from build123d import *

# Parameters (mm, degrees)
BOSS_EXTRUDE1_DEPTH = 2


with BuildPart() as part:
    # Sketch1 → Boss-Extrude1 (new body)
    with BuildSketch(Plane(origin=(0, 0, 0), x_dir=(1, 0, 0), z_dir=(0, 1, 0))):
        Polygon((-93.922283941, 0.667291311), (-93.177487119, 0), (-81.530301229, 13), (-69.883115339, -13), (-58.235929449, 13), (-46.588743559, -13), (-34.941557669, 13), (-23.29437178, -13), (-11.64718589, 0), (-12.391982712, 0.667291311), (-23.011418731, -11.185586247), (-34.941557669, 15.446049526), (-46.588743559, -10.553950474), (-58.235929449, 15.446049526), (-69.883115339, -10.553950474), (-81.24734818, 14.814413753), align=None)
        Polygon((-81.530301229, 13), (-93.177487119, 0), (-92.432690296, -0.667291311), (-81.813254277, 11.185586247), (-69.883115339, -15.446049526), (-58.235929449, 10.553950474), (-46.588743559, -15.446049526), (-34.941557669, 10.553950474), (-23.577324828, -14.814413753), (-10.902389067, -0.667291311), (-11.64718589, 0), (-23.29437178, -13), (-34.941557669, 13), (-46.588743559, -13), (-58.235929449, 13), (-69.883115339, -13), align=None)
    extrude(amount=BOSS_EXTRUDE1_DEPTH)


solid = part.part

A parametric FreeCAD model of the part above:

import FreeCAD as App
import Part
import Sketcher

V = App.Vector
Q = App.Units.Quantity


def add_polygon(sketch, points):
    """Adds a closed chain of lines whose ends are joined by coincident constraints."""
    first, n = sketch.GeometryCount, len(points)
    for a, b in zip(points, points[1:] + points[:1]):
        sketch.addGeometry(Part.LineSegment(App.Vector(*a, 0), App.Vector(*b, 0)), False)
    for i in range(n):
        sketch.addConstraint(Sketcher.Constraint("Coincident", first + i, 2, first + (i + 1) % n, 1))

doc = App.newDocument("Part")
body = doc.addObject("PartDesign::Body", "Body")

# Sketch on XZ plane
sketch1 = body.newObject("Sketcher::SketchObject", "Sketch")
sketch1.AttachmentSupport = (doc.getObject("XZ_Plane"), [""])
sketch1.MapMode = "FlatFace"
add_polygon(sketch1, [(-93.9, -0.7), (-93.2, 0), (-92.4, 0.7), (-81.8, -11.2), (-69.9, 15.4), (-58.2, -10.6), (-46.6, 15.4), (-34.9, -10.6), (-23.6, 14.8), (-10.9, 0.7), (-11.6, 0), (-12.4, -0.7), (-23, 11.2), (-34.9, -15.4), (-46.6, 10.6), (-58.2, -15.4), (-69.9, 10.6), (-81.2, -14.8)])  # lines 0-17
sketch1.addConstraint(Sketcher.Constraint("PointOnObject", 0, 2, -1))
sketch1.addConstraint(Sketcher.Constraint("PointOnObject", 9, 2, -1))
sketch1.addConstraint(Sketcher.Constraint("Parallel", 0, 1))
sketch1.addConstraint(Sketcher.Constraint("Perpendicular", 1, 2))
sketch1.addConstraint(Sketcher.Constraint("Parallel", 3, 5))
sketch1.addConstraint(Sketcher.Constraint("Parallel", 4, 6))
sketch1.addConstraint(Sketcher.Constraint("Parallel", 5, 7))
sketch1.addConstraint(Sketcher.Constraint("Parallel", 2, 8))
sketch1.addConstraint(Sketcher.Constraint("Perpendicular", 8, 9))
sketch1.addConstraint(Sketcher.Constraint("Parallel", 9, 10))
sketch1.addConstraint(Sketcher.Constraint("Perpendicular", 10, 11))
sketch1.addConstraint(Sketcher.Constraint("Parallel", 7, 12))
sketch1.addConstraint(Sketcher.Constraint("Parallel", 6, 13))
sketch1.addConstraint(Sketcher.Constraint("Parallel", 12, 14))
sketch1.addConstraint(Sketcher.Constraint("Parallel", 13, 15))
sketch1.addConstraint(Sketcher.Constraint("Parallel", 14, 16))
sketch1.addConstraint(Sketcher.Constraint("Parallel", 11, 17))
sketch1.addConstraint(Sketcher.Constraint("Horizontal", 3, 2, 5, 2))
sketch1.addConstraint(Sketcher.Constraint("Horizontal", 4, 2, 6, 2))
sketch1.addConstraint(Sketcher.Constraint("Horizontal", 1, 2, 8, 2))
sketch1.addConstraint(Sketcher.Constraint("Horizontal", 12, 2, 14, 2))
sketch1.addConstraint(Sketcher.Constraint("Horizontal", 13, 2, 15, 2))
sketch1.addConstraint(Sketcher.Constraint("Horizontal", 10, 2, 17, 2))
sketch1.addConstraint(Sketcher.Constraint("Vertical", 6, 2, 12, 2))
sketch1.addConstraint(Sketcher.Constraint("Vertical", 5, 2, 13, 2))
sketch1.addConstraint(Sketcher.Constraint("Equal", 0, 1))
sketch1.addConstraint(Sketcher.Constraint("Equal", 4, 5))
sketch1.addConstraint(Sketcher.Constraint("Equal", 2, 11))
sketch1.addConstraint(Sketcher.Constraint("Equal", 3, 12))
sketch1.addConstraint(Sketcher.Constraint("Distance", 0, Q("1 mm")))
sketch1.addConstraint(Sketcher.Constraint("DistanceY", 4, 2, 3, 2, Q("26 mm")))
sketch1.addConstraint(Sketcher.Constraint("DistanceY", 2, 2, 7, 2, Q("26 mm")))
sketch1.addConstraint(Sketcher.Constraint("DistanceY", 12, 2, 6, 2, Q("4.892099 mm")))
sketch1.addConstraint(Sketcher.Constraint("Distance", 3, Q("29.181711 mm")))
sketch1.addConstraint(Sketcher.Constraint("DistanceX", 1, 2, -1, 1, Q("92.43269 mm")))
sketch1.addConstraint(Sketcher.Constraint("DistanceY", -1, 1, 1, 2, Q("0.667291 mm")))
pad1 = body.newObject("PartDesign::Pad", "Pad")
pad1.Profile = sketch1
pad1.Length = 2
pad1.Reversed = True

doc.recompute()
